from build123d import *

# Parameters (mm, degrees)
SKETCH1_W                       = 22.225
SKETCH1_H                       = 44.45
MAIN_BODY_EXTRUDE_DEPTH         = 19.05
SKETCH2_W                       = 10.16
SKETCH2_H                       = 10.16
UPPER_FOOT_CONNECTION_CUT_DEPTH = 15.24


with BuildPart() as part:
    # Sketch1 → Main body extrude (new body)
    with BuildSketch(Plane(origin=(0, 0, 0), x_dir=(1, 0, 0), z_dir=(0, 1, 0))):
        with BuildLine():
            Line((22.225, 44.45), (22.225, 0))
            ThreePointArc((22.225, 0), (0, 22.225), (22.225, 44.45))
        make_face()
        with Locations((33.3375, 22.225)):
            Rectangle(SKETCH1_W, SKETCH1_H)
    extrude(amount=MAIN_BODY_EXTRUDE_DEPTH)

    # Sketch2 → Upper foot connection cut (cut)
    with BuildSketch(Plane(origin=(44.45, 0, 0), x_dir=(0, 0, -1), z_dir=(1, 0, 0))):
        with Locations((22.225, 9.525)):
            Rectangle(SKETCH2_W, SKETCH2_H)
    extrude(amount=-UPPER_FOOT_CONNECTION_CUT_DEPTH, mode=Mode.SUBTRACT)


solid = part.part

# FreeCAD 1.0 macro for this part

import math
import FreeCAD as App
import Part
import Sketcher
from FreeCAD import Vector
Q = App.Units.Quantity

doc = App.newDocument("Part")
body = doc.addObject("PartDesign::Body", "Body")

sketch1 = body.newObject("Sketcher::SketchObject", "Sketch")
sketch1.AttachmentSupport = (doc.getObject("XZ_Plane"), [""])
sketch1.MapMode = "FlatFace"
sketch1.addGeometry(Part.ArcOfCircle(Part.Circle(Vector(22, -22, 0), Vector(0, 0, 1), 22), math.radians(90), math.radians(270)), False)
sketch1.addGeometry(Part.LineSegment(Vector(22, 0, 0), Vector(44, 0, 0)), False)
sketch1.addGeometry(Part.LineSegment(Vector(44, 0, 0), Vector(44, -44, 0)), False)
sketch1.addGeometry(Part.LineSegment(Vector(44, -44, 0), Vector(22, -44, 0)), False)
sketch1.addConstraint(Sketcher.Constraint("Tangent", 0, 1, 1, 1))
sketch1.addConstraint(Sketcher.Constraint("Coincident", 1, 2, 2, 1))
sketch1.addConstraint(Sketcher.Constraint("Coincident", 2, 2, 3, 1))
sketch1.addConstraint(Sketcher.Constraint("Tangent", 3, 2, 0, 2))
sketch1.addConstraint(Sketcher.Constraint("Horizontal", 1))
sketch1.addConstraint(Sketcher.Constraint("Vertical", 2))
sketch1.addConstraint(Sketcher.Constraint("Horizontal", 3))
sketch1.addConstraint(Sketcher.Constraint("PointOnObject", 0, 1, -1))
sketch1.addConstraint(Sketcher.Constraint("Radius", 0, Q("0.875 in")))
sketch1.addConstraint(Sketcher.Constraint("DistanceX", 1, 1, 1, 2, Q("0.875 in")))
sketch1.addConstraint(Sketcher.Constraint("DistanceX", -1, 1, 1, 2, Q("1.75 in")))
pad1 = body.newObject("PartDesign::Pad", "Pad")
pad1.Profile = sketch1
pad1.Length = Q("0.75 in")
pad1.Reversed = True

sketch2 = body.newObject("Sketcher::SketchObject", "Sketch001")
sketch2.AttachmentSupport = (doc.getObject("YZ_Plane"), [""])
sketch2.MapMode = "FlatFace"
sketch2.AttachmentOffset = App.Placement(Vector(0, 0, 1.75 * 25.4), App.Rotation())
sketch2.addGeometry(Part.LineSegment(Vector(15, -17, 0), Vector(4, -17, 0)), False)
sketch2.addGeometry(Part.LineSegment(Vector(4, -17, 0), Vector(4, -27, 0)), False)
sketch2.addGeometry(Part.LineSegment(Vector(4, -27, 0), Vector(15, -27, 0)), False)
sketch2.addGeometry(Part.LineSegment(Vector(15, -27, 0), Vector(15, -17, 0)), False)
sketch2.addConstraint(Sketcher.Constraint("Coincident", 0, 2, 1, 1))
sketch2.addConstraint(Sketcher.Constraint("Coincident", 1, 2, 2, 1))
sketch2.addConstraint(Sketcher.Constraint("Coincident", 2, 2, 3, 1))
sketch2.addConstraint(Sketcher.Constraint("Coincident", 3, 2, 0, 1))
sketch2.addConstraint(Sketcher.Constraint("Horizontal", 0))
sketch2.addConstraint(Sketcher.Constraint("Vertical", 1))
sketch2.addConstraint(Sketcher.Constraint("Horizontal", 2))
sketch2.addConstraint(Sketcher.Constraint("Vertical", 3))
sketch2.addConstraint(Sketcher.Constraint("Equal", 2, 1))
sketch2.addConstraint(Sketcher.Constraint("DistanceX", 0, 2, 0, 1, Q("0.4 in")))
sketch2.addConstraint(Sketcher.Constraint("DistanceX", -1, 1, 0, 2, Q("0.175 in")))
sketch2.addConstraint(Sketcher.Constraint("DistanceY", 0, 2, -1, 1, Q("0.675 in")))
pocket1 = body.newObject("PartDesign::Pocket", "Pocket")
pocket1.Profile = sketch2
pocket1.Length = Q("0.6 in")

doc.recompute()
